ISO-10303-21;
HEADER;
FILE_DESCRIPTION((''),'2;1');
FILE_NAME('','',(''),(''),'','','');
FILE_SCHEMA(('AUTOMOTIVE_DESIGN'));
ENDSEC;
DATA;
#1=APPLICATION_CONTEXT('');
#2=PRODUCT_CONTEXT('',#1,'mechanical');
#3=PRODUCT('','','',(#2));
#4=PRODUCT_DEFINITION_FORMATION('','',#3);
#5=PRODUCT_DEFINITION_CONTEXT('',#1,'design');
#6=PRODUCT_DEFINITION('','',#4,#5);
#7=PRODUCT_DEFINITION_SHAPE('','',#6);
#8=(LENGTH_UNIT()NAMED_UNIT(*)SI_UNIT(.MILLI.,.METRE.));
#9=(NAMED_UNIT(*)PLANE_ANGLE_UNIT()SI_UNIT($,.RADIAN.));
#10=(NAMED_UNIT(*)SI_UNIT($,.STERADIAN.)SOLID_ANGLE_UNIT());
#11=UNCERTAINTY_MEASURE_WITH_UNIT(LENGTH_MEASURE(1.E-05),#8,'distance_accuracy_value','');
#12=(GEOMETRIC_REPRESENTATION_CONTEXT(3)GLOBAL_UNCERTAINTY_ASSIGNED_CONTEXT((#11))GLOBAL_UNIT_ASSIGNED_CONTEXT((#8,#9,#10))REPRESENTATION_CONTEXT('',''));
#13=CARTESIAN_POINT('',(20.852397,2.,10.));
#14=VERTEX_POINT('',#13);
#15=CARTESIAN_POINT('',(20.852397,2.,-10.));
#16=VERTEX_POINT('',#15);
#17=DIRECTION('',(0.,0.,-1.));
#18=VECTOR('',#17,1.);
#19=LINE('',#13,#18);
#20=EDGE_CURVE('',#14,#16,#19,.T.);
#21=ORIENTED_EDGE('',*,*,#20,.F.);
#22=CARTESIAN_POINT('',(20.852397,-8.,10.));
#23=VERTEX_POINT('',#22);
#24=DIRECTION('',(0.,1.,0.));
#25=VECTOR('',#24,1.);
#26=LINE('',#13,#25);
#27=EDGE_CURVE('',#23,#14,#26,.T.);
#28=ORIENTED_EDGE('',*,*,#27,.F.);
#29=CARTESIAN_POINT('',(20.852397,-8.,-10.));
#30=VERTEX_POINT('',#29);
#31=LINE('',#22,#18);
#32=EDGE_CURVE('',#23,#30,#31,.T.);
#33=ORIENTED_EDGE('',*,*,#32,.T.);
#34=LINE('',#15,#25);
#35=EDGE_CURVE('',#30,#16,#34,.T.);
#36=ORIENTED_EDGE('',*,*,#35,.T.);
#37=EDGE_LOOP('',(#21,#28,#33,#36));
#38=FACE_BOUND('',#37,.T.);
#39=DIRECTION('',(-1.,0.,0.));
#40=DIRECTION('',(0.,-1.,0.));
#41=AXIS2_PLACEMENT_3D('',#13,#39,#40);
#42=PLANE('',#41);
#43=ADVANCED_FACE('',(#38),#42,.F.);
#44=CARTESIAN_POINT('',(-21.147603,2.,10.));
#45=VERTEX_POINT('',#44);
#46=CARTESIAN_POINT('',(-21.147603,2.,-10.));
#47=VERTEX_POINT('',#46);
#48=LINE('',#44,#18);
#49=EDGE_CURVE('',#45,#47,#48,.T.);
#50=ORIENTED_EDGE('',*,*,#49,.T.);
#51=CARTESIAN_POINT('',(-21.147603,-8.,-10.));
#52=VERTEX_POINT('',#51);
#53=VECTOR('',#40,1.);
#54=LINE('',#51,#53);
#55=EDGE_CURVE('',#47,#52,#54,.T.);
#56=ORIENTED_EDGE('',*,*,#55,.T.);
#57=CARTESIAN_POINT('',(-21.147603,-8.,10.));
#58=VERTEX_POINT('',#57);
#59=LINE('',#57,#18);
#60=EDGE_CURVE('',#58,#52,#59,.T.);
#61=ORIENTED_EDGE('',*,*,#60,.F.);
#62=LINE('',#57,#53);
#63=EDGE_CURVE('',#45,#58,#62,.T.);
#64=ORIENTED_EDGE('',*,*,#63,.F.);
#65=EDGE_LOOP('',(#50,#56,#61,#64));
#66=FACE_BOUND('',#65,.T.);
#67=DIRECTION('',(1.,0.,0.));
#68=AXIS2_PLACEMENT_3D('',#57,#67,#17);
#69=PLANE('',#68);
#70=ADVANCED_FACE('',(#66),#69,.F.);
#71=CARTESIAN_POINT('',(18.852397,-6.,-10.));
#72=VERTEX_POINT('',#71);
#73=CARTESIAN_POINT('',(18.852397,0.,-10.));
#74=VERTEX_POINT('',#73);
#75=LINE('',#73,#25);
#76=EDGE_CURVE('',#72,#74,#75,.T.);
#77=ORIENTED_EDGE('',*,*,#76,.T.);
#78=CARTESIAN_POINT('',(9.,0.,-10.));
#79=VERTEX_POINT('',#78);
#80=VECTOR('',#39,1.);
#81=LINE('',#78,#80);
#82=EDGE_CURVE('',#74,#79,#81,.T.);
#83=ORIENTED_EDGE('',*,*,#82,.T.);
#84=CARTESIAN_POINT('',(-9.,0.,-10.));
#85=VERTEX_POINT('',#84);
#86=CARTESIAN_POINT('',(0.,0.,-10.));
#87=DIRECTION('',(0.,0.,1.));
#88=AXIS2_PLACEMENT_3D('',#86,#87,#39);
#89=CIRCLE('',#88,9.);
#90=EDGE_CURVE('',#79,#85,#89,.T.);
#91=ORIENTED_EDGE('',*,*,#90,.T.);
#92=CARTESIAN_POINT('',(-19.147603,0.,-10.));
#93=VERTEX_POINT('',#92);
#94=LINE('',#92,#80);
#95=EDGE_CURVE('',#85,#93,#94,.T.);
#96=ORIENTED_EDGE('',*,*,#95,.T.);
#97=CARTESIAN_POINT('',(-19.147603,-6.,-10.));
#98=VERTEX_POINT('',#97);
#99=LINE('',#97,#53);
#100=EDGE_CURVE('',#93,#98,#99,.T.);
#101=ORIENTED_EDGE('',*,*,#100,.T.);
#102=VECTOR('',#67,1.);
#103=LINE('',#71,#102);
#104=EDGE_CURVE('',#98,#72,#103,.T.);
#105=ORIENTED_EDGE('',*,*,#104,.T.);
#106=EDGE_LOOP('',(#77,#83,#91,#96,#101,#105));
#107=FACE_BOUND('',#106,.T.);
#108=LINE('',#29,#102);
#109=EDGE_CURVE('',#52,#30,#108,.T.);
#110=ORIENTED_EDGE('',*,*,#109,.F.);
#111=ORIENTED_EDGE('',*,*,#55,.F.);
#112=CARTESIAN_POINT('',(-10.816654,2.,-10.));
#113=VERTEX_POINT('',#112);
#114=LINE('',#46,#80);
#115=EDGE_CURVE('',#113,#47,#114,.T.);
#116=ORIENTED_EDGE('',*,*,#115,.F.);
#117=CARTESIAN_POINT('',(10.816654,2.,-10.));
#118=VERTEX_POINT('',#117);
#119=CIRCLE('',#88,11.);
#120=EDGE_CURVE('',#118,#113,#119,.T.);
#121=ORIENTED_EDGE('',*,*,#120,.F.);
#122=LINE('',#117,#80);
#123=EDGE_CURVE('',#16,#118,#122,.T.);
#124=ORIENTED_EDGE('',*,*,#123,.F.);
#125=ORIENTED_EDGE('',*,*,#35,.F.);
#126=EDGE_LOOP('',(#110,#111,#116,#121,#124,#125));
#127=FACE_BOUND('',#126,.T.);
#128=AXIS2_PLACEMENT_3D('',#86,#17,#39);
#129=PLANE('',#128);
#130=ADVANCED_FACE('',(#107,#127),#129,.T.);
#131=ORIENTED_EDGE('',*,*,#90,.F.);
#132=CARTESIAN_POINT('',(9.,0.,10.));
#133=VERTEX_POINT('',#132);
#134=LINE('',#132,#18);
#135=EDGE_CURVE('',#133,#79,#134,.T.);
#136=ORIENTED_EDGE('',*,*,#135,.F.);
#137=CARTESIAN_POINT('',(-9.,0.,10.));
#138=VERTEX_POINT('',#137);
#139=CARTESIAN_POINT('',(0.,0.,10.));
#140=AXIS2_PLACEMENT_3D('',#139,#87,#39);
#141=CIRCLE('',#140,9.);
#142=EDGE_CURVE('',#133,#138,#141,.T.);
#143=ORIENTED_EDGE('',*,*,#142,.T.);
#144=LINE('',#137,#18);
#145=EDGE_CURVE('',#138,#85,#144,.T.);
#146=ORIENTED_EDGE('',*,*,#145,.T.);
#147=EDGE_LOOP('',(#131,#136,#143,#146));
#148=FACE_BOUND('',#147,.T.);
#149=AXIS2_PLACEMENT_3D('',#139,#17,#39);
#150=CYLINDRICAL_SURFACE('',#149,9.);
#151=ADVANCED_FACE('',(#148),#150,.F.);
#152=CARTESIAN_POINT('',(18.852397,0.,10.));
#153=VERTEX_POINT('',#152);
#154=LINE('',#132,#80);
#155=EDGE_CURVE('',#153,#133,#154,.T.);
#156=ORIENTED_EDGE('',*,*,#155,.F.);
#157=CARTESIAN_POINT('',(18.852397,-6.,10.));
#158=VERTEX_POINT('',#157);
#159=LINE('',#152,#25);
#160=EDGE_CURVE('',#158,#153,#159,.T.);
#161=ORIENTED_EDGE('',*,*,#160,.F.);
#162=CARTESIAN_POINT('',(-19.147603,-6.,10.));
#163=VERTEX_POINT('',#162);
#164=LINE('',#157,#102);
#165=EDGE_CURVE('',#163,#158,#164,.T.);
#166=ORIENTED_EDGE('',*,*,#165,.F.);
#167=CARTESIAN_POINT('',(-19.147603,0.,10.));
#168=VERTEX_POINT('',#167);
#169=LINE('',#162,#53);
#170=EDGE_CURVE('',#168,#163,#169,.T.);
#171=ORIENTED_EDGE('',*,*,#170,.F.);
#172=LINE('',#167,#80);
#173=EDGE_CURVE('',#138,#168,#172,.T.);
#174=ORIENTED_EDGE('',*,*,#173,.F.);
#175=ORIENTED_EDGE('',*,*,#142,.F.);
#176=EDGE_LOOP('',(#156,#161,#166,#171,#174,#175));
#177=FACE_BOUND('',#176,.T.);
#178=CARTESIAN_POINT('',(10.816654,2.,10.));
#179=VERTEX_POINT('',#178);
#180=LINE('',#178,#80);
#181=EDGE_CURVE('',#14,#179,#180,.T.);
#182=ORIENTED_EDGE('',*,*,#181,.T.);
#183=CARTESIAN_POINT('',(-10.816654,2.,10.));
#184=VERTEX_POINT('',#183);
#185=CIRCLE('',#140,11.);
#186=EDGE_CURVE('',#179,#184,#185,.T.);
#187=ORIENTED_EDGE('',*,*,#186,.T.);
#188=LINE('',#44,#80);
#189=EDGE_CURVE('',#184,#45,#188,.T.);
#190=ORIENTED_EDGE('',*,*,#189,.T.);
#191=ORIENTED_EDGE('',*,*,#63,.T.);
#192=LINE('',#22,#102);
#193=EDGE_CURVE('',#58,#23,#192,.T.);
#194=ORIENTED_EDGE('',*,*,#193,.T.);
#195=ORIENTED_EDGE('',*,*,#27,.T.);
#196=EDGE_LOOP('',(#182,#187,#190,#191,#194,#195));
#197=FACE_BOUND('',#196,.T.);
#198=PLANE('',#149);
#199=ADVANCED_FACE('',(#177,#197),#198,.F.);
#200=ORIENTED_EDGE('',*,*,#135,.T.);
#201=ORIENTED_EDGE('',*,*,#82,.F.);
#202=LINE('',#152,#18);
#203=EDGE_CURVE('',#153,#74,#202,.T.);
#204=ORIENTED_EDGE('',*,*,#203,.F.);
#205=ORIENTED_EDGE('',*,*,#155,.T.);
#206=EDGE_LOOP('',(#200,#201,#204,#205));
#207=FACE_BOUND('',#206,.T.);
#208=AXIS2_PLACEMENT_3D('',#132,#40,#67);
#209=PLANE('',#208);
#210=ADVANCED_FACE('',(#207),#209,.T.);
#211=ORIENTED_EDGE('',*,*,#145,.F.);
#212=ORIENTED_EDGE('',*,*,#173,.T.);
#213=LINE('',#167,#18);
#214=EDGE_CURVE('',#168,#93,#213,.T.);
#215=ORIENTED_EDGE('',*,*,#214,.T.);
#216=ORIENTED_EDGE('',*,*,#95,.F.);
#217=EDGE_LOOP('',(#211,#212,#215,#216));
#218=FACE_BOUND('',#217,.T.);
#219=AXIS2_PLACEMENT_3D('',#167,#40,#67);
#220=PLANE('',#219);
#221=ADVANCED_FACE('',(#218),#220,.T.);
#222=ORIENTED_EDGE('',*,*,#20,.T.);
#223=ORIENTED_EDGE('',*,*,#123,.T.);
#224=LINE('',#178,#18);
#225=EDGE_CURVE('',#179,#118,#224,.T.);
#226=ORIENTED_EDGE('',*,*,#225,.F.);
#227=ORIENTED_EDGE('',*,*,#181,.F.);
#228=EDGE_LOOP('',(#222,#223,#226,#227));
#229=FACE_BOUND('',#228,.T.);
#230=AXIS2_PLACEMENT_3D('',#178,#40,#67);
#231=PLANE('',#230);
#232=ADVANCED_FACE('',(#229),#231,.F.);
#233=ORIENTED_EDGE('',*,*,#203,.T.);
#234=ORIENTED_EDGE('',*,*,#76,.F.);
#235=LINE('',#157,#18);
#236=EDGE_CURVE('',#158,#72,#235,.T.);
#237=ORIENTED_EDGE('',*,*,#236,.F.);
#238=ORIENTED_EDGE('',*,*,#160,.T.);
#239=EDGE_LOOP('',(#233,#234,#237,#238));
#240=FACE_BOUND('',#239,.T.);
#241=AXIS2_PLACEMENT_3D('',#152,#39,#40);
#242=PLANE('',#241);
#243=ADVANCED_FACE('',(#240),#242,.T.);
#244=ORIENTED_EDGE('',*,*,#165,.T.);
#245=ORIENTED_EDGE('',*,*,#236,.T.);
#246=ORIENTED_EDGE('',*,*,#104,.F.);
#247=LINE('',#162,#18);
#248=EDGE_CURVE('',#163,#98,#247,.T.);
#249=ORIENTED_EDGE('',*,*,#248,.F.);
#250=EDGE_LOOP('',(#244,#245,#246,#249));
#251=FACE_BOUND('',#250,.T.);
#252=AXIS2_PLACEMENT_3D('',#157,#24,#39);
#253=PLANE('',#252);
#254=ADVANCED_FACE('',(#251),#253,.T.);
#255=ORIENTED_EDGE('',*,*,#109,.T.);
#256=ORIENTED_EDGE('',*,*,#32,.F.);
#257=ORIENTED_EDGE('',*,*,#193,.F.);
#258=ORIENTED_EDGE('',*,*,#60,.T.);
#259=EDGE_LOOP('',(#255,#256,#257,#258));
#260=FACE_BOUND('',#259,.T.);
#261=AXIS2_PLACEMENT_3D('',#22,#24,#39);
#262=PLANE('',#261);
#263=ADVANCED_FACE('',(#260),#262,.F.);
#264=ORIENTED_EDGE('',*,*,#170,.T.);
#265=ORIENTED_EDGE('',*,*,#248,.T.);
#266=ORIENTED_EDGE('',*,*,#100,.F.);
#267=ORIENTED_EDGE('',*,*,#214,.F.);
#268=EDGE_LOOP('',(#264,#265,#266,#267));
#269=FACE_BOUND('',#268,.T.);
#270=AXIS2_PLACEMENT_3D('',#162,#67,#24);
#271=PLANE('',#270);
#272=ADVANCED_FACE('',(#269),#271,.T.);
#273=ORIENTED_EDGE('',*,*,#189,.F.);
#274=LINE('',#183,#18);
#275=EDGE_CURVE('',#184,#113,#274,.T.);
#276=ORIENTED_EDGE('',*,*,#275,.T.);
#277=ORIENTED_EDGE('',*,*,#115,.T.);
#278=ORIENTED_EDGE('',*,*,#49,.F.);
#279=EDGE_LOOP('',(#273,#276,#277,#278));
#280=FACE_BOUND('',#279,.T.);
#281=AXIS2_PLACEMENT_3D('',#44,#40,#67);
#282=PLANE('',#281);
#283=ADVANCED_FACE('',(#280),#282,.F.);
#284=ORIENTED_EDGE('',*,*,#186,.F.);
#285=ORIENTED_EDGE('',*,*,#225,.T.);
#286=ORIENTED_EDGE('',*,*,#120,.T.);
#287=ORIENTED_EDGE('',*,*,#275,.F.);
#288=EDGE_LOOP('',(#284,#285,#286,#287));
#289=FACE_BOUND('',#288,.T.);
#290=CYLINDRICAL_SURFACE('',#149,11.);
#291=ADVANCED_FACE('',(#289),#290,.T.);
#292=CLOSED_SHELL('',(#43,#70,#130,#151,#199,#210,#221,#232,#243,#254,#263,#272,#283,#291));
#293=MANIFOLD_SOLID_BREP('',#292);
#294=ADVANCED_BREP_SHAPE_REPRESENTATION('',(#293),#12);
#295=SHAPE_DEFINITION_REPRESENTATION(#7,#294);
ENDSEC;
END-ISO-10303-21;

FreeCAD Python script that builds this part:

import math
import FreeCAD as App
import Part
import Sketcher

V = App.Vector
Q = App.Units.Quantity

doc = App.newDocument("Part")
params = doc.addObject("Spreadsheet::Sheet", "Params")
for row, (alias, value) in enumerate([
    ("sketch1_radius", "11 mm"),
    ("sketch1_radius2", "9 mm"),
    ("sketch1_width", "42 mm"),
    ("sketch1_width2", "38 mm"),
    ("sketch1_height", "10 mm"),
    ("pad1_length", "20 mm"),
], start=1):
    params.set(f"A{row}", alias)
    params.set(f"B{row}", "=" + value)
    params.setAlias(f"B{row}", alias)

body = doc.addObject("PartDesign::Body", "Body")

sketch1 = body.newObject("Sketcher::SketchObject", "Sketch")
sketch1.AttachmentSupport = (doc.getObject("XY_Plane"), [""])
sketch1.MapMode = "FlatFace"
sketch1.addGeometry([
    Part.LineSegment(V(21, 2, 0), V(11, 2, 0)),
    Part.ArcOfCircle(Part.Circle(V(0, 0, 0), V(0, 0, 1), 11), math.radians(10), math.radians(170)),
    Part.LineSegment(V(-11, 2, 0), V(-21, 2, 0)),
    Part.LineSegment(V(-21, 2, 0), V(-21, -8, 0)),
    Part.LineSegment(V(-21, -8, 0), V(21, -8, 0)),
    Part.LineSegment(V(21, -8, 0), V(21, 2, 0)),
    Part.LineSegment(V(9, 0, 0), V(19, 0, 0)),
    Part.LineSegment(V(19, 0, 0), V(19, -6, 0)),
    Part.LineSegment(V(19, -6, 0), V(-19, -6, 0)),
    Part.LineSegment(V(-19, -6, 0), V(-19, 0, 0)),
    Part.LineSegment(V(-19, 0, 0), V(-9, 0, 0)),
    Part.ArcOfCircle(Part.Circle(V(0, 0, 0), V(0, 0, 1), 9), math.radians(0), math.radians(180)),
], False)
sketch1.addConstraint([
    Sketcher.Constraint("Coincident", 0, 2, 1, 1),
    Sketcher.Constraint("Coincident", 1, 2, 2, 1),
    Sketcher.Constraint("Coincident", 2, 2, 3, 1),
    Sketcher.Constraint("Coincident", 3, 2, 4, 1),
    Sketcher.Constraint("Coincident", 4, 2, 5, 1),
    Sketcher.Constraint("Coincident", 5, 2, 0, 1),
    Sketcher.Constraint("Coincident", 6, 2, 7, 1),
    Sketcher.Constraint("Coincident", 7, 2, 8, 1),
    Sketcher.Constraint("Coincident", 8, 2, 9, 1),
    Sketcher.Constraint("Coincident", 9, 2, 10, 1),
    Sketcher.Constraint("Coincident", 10, 2, 11, 2),
    Sketcher.Constraint("Coincident", 11, 1, 6, 1),
    Sketcher.Constraint("Horizontal", 0),
    Sketcher.Constraint("Horizontal", 2),
    Sketcher.Constraint("Vertical", 3),
    Sketcher.Constraint("Horizontal", 4),
    Sketcher.Constraint("Vertical", 5),
    Sketcher.Constraint("Horizontal", 6),
    Sketcher.Constraint("Vertical", 7),
    Sketcher.Constraint("Horizontal", 8),
    Sketcher.Constraint("Vertical", 9),
    Sketcher.Constraint("Horizontal", 10),
    Sketcher.Constraint("Coincident", 1, 3, -1, 1),
    Sketcher.Constraint("Coincident", 11, 3, -1, 1),
    Sketcher.Constraint("PointOnObject", 6, 2, -1),
    Sketcher.Constraint("PointOnObject", 9, 2, -1),
    Sketcher.Constraint("Horizontal", 0, 2, 1, 2),
    Sketcher.Constraint("Radius", 1, Q("11 mm")),
    Sketcher.Constraint("Radius", 11, Q("9 mm")),
    Sketcher.Constraint("DistanceX", 4, 1, 4, 2, Q("42 mm")),
    Sketcher.Constraint("DistanceX", 8, 2, 8, 1, Q("38 mm")),
    Sketcher.Constraint("DistanceY", 3, 2, 3, 1, Q("10 mm")),
    Sketcher.Constraint("DistanceY", 7, 2, 7, 1, Q("6 mm")),
    Sketcher.Constraint("DistanceY", -1, 1, 0, 2, Q("2 mm")),
    Sketcher.Constraint("DistanceX", 6, 2, 5, 2, Q("2 mm")),
    Sketcher.Constraint("DistanceX", 2, 2, 2, 1, Q("10.330949 mm")),
])
sketch1.setExpression("Constraints[27]", "Params.sketch1_radius")
sketch1.setExpression("Constraints[28]", "Params.sketch1_radius2")
sketch1.setExpression("Constraints[29]", "Params.sketch1_width")
sketch1.setExpression("Constraints[30]", "Params.sketch1_width2")
sketch1.setExpression("Constraints[31]", "Params.sketch1_height")
pad1 = body.newObject("PartDesign::Pad", "Pad")
pad1.Profile = sketch1
pad1.setExpression("Length", "Params.pad1_length")
pad1.Midplane = True

doc.recompute()
